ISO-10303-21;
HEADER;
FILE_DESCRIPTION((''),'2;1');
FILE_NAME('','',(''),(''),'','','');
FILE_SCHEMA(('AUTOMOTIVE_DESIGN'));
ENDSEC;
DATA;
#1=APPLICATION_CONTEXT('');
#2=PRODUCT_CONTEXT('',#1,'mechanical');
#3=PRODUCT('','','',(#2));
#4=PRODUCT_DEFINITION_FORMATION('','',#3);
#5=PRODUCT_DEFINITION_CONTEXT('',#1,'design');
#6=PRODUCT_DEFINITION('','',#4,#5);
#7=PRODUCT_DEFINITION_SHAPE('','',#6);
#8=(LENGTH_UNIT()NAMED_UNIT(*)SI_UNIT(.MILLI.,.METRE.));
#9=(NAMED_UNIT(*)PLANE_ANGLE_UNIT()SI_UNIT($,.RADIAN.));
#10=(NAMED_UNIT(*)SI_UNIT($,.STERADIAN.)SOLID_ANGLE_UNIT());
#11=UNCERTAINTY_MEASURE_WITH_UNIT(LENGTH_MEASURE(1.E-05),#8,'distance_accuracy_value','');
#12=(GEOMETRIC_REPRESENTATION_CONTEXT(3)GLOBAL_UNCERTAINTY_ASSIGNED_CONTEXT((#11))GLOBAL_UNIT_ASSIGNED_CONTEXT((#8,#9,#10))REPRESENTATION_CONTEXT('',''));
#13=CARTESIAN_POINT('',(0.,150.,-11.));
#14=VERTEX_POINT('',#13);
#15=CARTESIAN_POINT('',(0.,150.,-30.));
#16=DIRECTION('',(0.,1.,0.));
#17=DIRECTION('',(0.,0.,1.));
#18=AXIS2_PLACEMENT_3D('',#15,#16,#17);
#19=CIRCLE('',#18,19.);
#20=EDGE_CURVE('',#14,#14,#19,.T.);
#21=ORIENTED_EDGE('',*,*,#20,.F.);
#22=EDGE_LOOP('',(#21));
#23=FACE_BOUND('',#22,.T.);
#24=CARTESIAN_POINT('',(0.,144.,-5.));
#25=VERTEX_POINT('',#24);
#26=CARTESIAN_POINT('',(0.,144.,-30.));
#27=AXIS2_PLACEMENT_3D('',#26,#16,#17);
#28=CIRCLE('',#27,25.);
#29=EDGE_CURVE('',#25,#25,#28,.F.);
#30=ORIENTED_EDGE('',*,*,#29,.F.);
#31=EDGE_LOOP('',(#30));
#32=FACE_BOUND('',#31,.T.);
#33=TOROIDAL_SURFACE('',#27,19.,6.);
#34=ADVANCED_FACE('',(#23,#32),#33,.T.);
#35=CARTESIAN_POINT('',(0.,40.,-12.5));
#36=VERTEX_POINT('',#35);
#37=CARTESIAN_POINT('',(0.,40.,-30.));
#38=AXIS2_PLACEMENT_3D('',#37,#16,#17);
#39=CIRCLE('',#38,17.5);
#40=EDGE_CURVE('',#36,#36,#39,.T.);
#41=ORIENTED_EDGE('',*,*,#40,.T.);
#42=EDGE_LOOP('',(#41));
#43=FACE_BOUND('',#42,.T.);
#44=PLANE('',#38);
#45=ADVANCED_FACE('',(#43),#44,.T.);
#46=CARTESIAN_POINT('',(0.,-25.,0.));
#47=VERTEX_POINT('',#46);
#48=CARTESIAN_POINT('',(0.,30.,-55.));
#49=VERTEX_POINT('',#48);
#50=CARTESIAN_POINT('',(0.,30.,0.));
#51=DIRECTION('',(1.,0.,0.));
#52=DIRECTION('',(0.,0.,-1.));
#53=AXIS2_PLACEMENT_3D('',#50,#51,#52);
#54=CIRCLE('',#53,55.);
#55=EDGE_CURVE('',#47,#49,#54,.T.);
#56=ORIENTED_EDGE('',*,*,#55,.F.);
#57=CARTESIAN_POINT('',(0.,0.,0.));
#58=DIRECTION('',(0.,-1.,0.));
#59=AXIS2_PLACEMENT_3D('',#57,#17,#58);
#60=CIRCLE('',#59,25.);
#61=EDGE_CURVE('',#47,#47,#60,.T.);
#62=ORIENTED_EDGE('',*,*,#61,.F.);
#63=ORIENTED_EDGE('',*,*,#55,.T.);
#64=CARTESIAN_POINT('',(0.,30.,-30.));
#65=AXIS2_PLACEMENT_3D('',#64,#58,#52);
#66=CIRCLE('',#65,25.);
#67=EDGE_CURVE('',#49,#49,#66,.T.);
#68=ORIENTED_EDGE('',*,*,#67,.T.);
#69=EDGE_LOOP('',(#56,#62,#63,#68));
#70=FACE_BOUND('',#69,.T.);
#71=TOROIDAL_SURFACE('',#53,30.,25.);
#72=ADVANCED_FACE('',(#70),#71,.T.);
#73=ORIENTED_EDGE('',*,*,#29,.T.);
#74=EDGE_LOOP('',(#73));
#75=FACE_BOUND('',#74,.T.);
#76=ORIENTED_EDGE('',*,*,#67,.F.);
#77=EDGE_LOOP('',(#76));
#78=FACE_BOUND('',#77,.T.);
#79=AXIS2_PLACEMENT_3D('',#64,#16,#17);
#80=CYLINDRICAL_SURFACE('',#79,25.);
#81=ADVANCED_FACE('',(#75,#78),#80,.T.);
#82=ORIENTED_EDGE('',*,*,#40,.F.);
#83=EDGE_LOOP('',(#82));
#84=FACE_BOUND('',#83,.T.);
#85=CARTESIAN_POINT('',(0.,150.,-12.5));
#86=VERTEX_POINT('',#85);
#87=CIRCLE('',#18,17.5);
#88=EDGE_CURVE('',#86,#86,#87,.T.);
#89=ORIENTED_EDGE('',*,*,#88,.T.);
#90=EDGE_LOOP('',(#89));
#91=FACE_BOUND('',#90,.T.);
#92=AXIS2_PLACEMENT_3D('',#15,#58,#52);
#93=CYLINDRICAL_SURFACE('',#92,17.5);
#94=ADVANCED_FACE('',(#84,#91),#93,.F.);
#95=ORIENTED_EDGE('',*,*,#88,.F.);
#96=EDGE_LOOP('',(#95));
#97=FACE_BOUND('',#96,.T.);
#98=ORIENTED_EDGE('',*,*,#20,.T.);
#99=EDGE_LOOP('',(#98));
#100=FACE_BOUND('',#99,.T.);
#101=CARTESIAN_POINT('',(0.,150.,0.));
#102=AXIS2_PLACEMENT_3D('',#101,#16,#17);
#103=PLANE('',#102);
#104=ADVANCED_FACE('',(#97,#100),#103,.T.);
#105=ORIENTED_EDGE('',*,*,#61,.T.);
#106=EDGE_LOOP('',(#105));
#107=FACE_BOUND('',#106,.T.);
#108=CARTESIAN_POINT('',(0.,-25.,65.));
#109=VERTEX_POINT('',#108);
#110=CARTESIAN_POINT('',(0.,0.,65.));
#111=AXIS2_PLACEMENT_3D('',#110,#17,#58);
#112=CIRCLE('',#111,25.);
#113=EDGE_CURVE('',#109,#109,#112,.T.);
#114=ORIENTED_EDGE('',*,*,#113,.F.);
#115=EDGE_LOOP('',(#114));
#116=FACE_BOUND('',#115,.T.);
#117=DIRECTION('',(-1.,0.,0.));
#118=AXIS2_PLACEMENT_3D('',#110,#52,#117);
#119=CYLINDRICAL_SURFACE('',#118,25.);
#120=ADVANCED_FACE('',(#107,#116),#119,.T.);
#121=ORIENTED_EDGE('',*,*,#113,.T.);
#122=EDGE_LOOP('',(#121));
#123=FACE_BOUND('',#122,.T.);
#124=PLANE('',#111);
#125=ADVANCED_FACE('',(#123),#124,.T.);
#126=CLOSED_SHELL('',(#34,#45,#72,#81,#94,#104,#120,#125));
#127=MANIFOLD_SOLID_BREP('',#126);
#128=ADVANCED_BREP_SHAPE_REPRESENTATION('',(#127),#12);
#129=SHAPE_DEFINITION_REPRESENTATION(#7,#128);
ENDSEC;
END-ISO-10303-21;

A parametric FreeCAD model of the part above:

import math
import FreeCAD as App
import Part
import Sketcher
Q = App.Units.Quantity


def edges_at(feature, points):
    """Names of the edges that pass closest to the given points."""
    edges = feature.Shape.Edges
    near = lambda p: min(range(len(edges)), key=lambda i: edges[i].distToShape(Part.Vertex(*p))[0])
    return sorted({f"Edge{near(p) + 1}" for p in points})

doc = App.newDocument("Part")
body = doc.addObject("PartDesign::Body", "Body")

# Sketch on XY plane
sketch1 = body.newObject("Sketcher::SketchObject", "Sketch")
sketch1.AttachmentSupport = (doc.getObject("XY_Plane"), [""])
sketch1.MapMode = "FlatFace"
sketch1.AttachmentOffset = App.Placement(App.Vector(0, 0, 65), App.Rotation())
sketch1.addGeometry(Part.Circle(App.Vector(0, 0, 0), App.Vector(0, 0, 1), 25), False)
sketch1.addConstraint(Sketcher.Constraint("Coincident", 0, 3, -1, 1))
sketch1.addConstraint(Sketcher.Constraint("Diameter", 0, Q("50 mm")))

# Sketch on YZ plane
sketch2 = body.newObject("Sketcher::SketchObject", "Sketch001")
sketch2.AttachmentSupport = (doc.getObject("YZ_Plane"), [""])
sketch2.MapMode = "FlatFace"
sketch2.addGeometry(Part.LineSegment(App.Vector(0, 65, 0), App.Vector(0, 0, 0)), False)
sketch2.addGeometry(Part.ArcOfCircle(Part.Circle(App.Vector(30, 0, 0), App.Vector(0, 0, 1), 30), math.radians(180), math.radians(270)), False)
sketch2.addGeometry(Part.LineSegment(App.Vector(30, -30, 0), App.Vector(120, -30, 0)), False)
sketch2.addConstraint(Sketcher.Constraint("Tangent", 0, 2, 1, 1))
sketch2.addConstraint(Sketcher.Constraint("Tangent", 1, 2, 2, 1))
sketch2.addConstraint(Sketcher.Constraint("Vertical", 0))
sketch2.addConstraint(Sketcher.Constraint("Horizontal", 2))
sketch2.addConstraint(Sketcher.Constraint("Coincident", 0, 2, -1, 1))
sketch2.addConstraint(Sketcher.Constraint("Radius", 1, Q("30 mm")))
sketch2.addConstraint(Sketcher.Constraint("DistanceX", 2, 1, 2, 2, Q("90 mm")))
sketch2.addConstraint(Sketcher.Constraint("DistanceY", 0, 2, 0, 1, Q("65 mm")))
doc.recompute()

additivepipe = body.newObject("PartDesign::AdditivePipe", "AdditivePipe")
additivepipe.Profile = sketch1
additivepipe.Spine = (sketch2, ["Edge1", "Edge2", "Edge3"])

# Sketch on XZ plane
sketch3 = body.newObject("Sketcher::SketchObject", "Sketch002")
sketch3.AttachmentSupport = (doc.getObject("XZ_Plane"), [""])
sketch3.MapMode = "FlatFace"
sketch3.AttachmentOffset = App.Placement(App.Vector(0, 0, -150), App.Rotation())
sketch3.addGeometry(Part.Circle(App.Vector(0, -30, 0), App.Vector(0, 0, 1), 25), False)
sketch3.addGeometry(Part.Circle(App.Vector(0, -30, 0), App.Vector(0, 0, 1), 18), False)
sketch3.addConstraint(Sketcher.Constraint("Coincident", 1, 3, 0, 3))
sketch3.addConstraint(Sketcher.Constraint("PointOnObject", 0, 3, -2))
sketch3.addConstraint(Sketcher.Constraint("Diameter", 0, Q("50 mm")))
sketch3.addConstraint(Sketcher.Constraint("Diameter", 1, Q("35 mm")))
sketch3.addConstraint(Sketcher.Constraint("DistanceY", 0, 3, -1, 1, Q("30 mm")))
pad1 = body.newObject("PartDesign::Pad", "Pad")
pad1.Profile = sketch3
pad1.Length = 30
doc.recompute()

fillet = body.newObject("PartDesign::Fillet", "Fillet")
fillet.Base = (pad1, edges_at(pad1, [(0, 150, -55)]))
fillet.Radius = 6

# Sketch on XZ plane
sketch4 = body.newObject("Sketcher::SketchObject", "Sketch003")
sketch4.AttachmentSupport = (doc.getObject("XZ_Plane"), [""])
sketch4.MapMode = "FlatFace"
sketch4.AttachmentOffset = App.Placement(App.Vector(0, 0, -120), App.Rotation())
sketch4.addGeometry(Part.Circle(App.Vector(0, -30, 0), App.Vector(0, 0, 1), 18), False)
sketch4.addConstraint(Sketcher.Constraint("PointOnObject", 0, 3, -2))
sketch4.addConstraint(Sketcher.Constraint("Diameter", 0, Q("35 mm")))
sketch4.addConstraint(Sketcher.Constraint("DistanceY", 0, 3, -1, 1, Q("30 mm")))
pocket1 = body.newObject("PartDesign::Pocket", "Pocket")
pocket1.Profile = sketch4
pocket1.Length = 80
pocket1.Reversed = True

doc.recompute()
